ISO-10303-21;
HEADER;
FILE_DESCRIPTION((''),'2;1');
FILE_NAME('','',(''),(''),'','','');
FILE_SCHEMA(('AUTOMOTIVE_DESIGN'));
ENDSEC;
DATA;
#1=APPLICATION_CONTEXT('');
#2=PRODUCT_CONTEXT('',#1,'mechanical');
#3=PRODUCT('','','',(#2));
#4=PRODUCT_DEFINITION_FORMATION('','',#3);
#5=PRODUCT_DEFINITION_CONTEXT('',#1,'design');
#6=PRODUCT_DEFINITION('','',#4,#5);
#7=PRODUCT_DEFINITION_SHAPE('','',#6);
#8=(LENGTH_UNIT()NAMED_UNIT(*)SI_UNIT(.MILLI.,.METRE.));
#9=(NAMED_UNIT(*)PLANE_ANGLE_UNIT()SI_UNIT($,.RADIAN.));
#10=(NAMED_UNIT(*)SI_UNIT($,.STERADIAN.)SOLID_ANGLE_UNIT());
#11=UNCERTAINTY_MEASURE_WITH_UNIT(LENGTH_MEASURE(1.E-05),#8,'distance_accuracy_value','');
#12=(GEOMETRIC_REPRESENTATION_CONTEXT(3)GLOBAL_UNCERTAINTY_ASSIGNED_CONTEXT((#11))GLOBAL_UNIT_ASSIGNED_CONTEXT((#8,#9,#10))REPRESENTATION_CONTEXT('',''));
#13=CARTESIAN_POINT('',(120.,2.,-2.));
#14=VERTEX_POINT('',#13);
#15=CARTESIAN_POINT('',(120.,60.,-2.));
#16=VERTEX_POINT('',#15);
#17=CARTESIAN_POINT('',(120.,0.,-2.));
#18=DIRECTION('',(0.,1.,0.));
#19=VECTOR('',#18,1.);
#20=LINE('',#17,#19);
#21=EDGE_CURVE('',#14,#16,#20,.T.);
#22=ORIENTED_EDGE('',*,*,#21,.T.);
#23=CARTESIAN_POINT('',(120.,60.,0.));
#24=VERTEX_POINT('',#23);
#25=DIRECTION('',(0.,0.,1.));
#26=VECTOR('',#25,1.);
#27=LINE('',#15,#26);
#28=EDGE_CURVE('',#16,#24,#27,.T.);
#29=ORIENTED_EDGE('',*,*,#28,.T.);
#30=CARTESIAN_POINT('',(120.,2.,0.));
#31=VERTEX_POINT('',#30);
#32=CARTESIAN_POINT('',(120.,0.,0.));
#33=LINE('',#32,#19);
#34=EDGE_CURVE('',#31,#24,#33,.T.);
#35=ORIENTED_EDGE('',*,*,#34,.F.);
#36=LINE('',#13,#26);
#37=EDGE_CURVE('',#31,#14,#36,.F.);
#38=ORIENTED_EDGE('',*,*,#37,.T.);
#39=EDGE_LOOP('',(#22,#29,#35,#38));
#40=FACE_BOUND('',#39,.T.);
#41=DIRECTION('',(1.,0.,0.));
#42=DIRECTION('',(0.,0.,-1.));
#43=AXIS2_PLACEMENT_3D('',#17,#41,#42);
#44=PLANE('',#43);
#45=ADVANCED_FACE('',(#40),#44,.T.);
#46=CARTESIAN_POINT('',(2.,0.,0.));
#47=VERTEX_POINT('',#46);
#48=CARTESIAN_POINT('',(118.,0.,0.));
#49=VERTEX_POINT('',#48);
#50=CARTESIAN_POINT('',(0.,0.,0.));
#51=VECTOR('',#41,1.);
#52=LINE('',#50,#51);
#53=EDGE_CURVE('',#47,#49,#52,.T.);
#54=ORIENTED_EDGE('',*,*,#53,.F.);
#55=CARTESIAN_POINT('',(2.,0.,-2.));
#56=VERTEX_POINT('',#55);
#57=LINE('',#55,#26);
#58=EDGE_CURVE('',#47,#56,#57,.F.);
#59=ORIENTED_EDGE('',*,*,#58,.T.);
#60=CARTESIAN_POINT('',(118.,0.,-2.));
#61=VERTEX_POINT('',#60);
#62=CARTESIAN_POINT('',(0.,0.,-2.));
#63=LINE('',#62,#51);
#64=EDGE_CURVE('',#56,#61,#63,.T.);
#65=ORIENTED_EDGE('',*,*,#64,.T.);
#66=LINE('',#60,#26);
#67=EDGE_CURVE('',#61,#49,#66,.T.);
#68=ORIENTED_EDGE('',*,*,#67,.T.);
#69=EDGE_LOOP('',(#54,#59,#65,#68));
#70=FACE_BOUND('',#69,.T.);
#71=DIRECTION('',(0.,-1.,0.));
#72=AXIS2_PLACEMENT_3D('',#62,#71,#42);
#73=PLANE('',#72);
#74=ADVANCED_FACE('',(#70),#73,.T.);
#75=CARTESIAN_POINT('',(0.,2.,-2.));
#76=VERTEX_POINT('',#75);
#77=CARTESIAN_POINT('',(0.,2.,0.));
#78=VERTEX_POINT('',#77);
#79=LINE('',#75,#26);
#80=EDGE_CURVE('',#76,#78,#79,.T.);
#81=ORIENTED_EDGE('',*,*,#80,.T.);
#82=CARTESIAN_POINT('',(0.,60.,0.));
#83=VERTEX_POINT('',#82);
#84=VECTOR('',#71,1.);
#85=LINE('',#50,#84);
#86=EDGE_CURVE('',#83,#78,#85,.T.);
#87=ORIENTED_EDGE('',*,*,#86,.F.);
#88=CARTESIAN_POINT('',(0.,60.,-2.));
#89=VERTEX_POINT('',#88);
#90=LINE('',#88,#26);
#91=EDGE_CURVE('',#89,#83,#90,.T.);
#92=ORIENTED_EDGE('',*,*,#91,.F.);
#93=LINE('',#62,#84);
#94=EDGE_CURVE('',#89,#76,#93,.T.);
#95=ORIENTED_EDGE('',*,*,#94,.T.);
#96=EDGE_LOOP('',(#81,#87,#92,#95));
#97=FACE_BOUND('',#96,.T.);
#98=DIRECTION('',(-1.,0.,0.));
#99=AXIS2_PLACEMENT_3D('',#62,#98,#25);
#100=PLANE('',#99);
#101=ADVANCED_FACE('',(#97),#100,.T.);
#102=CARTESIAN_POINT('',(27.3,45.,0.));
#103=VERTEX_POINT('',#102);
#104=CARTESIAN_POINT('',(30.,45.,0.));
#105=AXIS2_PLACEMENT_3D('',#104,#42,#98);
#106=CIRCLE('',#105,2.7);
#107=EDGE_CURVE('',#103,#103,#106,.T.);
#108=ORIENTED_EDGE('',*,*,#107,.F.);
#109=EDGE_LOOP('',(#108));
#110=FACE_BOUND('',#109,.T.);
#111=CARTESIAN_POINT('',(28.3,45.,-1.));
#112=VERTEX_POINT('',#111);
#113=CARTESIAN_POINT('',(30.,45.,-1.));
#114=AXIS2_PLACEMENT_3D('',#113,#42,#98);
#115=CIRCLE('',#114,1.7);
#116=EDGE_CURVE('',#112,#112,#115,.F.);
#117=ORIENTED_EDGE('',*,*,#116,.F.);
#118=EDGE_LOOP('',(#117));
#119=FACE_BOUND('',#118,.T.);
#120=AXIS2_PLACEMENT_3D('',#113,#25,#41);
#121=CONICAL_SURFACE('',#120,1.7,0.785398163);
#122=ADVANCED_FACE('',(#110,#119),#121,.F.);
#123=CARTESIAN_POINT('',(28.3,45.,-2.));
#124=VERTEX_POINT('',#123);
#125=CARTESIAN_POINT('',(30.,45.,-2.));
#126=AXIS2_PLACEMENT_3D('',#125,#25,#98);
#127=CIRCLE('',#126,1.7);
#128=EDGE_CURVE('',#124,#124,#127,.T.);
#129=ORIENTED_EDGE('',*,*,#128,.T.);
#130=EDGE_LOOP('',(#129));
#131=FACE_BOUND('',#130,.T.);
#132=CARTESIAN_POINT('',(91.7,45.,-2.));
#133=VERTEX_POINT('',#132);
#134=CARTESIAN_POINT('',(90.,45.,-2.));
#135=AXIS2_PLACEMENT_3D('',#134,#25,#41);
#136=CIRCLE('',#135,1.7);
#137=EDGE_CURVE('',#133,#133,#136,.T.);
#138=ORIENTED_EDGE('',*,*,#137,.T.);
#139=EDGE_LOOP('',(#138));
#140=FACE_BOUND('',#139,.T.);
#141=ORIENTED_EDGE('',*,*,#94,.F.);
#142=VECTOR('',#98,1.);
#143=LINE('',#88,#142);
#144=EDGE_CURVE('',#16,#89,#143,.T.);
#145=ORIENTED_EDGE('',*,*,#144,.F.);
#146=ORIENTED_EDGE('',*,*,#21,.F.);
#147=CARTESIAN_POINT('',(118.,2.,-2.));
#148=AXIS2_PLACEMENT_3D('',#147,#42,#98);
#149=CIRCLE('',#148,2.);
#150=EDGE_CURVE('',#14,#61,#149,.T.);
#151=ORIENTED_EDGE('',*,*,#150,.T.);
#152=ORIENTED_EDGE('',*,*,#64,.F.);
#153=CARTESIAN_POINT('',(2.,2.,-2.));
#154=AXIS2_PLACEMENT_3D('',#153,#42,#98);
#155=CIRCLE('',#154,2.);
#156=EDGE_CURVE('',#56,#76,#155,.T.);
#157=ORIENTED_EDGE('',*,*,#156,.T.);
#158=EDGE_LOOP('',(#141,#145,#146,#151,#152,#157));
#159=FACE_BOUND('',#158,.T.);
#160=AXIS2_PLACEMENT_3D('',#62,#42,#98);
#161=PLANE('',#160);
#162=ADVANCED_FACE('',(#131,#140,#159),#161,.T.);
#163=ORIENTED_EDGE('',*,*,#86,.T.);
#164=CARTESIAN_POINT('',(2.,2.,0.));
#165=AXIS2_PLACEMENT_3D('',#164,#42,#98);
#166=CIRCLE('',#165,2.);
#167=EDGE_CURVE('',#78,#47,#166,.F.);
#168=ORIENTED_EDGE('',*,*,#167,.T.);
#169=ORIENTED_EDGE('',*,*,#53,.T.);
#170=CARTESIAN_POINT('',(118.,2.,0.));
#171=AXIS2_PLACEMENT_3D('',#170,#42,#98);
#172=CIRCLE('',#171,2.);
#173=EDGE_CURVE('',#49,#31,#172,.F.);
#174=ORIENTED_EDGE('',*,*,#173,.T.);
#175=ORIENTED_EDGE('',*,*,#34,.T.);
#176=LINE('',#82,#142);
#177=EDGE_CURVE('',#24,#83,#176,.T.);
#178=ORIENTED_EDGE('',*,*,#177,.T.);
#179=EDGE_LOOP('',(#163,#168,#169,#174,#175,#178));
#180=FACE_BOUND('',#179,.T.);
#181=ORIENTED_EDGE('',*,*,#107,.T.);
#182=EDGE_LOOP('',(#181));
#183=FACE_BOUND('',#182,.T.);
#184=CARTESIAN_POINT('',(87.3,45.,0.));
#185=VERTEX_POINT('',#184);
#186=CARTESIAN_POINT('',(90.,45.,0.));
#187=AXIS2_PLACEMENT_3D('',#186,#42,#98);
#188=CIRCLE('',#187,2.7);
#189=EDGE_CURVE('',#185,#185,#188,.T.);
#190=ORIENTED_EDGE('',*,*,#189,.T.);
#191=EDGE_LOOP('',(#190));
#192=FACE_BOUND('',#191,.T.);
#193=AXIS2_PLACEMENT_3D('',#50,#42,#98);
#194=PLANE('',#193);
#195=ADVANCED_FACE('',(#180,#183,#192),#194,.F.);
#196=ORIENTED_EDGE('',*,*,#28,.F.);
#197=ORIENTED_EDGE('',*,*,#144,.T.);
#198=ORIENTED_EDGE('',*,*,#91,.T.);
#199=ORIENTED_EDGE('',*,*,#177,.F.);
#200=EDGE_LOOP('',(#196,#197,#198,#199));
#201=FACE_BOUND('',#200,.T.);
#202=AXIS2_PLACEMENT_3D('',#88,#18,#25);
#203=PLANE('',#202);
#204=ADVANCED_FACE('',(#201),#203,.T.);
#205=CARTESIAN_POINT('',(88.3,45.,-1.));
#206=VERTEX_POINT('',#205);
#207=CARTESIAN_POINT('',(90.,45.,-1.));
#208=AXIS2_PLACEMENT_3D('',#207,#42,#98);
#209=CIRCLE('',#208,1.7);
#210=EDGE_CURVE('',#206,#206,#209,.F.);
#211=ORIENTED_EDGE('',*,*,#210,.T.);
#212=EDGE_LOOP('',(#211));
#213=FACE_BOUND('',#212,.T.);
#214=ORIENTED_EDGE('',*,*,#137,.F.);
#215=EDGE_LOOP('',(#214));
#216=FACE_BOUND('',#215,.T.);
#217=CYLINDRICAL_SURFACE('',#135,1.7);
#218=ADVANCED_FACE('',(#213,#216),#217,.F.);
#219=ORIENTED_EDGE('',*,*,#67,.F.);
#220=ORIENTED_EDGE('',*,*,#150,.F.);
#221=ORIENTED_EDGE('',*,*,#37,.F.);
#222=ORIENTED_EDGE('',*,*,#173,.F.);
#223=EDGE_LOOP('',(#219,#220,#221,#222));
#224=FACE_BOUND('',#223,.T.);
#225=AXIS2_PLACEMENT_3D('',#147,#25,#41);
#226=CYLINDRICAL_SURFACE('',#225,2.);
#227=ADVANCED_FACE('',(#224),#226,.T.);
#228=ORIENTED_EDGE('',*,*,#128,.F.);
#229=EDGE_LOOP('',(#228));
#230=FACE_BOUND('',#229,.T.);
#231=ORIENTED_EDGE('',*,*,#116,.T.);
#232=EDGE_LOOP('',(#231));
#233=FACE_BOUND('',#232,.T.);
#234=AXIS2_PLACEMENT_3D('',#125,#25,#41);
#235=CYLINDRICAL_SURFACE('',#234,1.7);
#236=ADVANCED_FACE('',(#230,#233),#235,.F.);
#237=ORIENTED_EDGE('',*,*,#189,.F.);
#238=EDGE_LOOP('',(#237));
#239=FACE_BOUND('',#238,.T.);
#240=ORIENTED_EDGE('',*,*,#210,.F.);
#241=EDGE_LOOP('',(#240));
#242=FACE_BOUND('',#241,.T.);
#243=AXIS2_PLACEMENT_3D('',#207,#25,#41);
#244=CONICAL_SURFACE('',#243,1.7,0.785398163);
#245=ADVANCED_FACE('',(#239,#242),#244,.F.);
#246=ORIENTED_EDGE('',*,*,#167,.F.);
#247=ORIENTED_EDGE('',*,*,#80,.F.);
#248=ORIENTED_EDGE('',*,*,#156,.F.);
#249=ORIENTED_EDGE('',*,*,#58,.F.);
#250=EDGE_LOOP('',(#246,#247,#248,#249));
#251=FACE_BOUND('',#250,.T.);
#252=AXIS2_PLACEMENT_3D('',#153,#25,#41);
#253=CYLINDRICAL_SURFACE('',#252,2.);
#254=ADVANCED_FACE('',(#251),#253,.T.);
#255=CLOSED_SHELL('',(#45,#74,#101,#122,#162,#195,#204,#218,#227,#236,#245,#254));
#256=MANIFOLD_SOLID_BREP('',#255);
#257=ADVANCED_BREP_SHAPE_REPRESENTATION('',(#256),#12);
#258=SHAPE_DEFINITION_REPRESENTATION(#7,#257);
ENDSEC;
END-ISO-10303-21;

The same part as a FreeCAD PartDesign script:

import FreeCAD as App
import Part
import Sketcher


def edges_at(feature, points):
    """Names of the edges that pass closest to the given points."""
    edges = feature.Shape.Edges
    near = lambda p: min(range(len(edges)), key=lambda i: edges[i].distToShape(Part.Vertex(*p))[0])
    return sorted({f"Edge{near(p) + 1}" for p in points})

doc = App.newDocument("Part")
body = doc.addObject("PartDesign::Body", "Body")

# Sketch on XY plane
sketch1 = body.newObject("Sketcher::SketchObject", "Sketch")
sketch1.AttachmentSupport = (doc.getObject("XY_Plane"), [""])
sketch1.MapMode = "FlatFace"
sketch1.addGeometry([
    Part.LineSegment(App.Vector(0, 60, 0), App.Vector(0, 0, 0)),  # 0
    Part.LineSegment(App.Vector(0, 0, 0), App.Vector(120, 0, 0)),  # 1
    Part.LineSegment(App.Vector(120, 0, 0), App.Vector(120, 60, 0)),  # 2
    Part.LineSegment(App.Vector(120, 60, 0), App.Vector(0, 60, 0)),  # 3
    Part.Circle(App.Vector(30, 45, 0), App.Vector(0, 0, 1), 1.7),  # 4
    Part.Circle(App.Vector(90, 45, 0), App.Vector(0, 0, 1), 1.7),  # 5
], False)
sketch1.addConstraint([
    Sketcher.Constraint("Coincident", 0, 2, 1, 1),
    Sketcher.Constraint("Coincident", 1, 2, 2, 1),
    Sketcher.Constraint("Coincident", 2, 2, 3, 1),
    Sketcher.Constraint("Coincident", 3, 2, 0, 1),
    Sketcher.Constraint("Vertical", 0),
    Sketcher.Constraint("Horizontal", 1),
    Sketcher.Constraint("Vertical", 2),
    Sketcher.Constraint("Horizontal", 3),
    Sketcher.Constraint("Coincident", 0, 2, -1, 1),
    Sketcher.Constraint("Equal", 4, 5),
    Sketcher.Constraint("Horizontal", 4, 3, 5, 3),
    Sketcher.Constraint("Diameter", 4, 3.4),
    Sketcher.Constraint("DistanceX", 1, 1, 1, 2, 120.0),
    Sketcher.Constraint("DistanceY", 0, 2, 0, 1, 60.0),
    Sketcher.Constraint("DistanceX", -1, 1, 4, 3, 30.0),
    Sketcher.Constraint("DistanceY", -1, 1, 4, 3, 45.0),
    Sketcher.Constraint("DistanceX", -1, 1, 5, 3, 90.0),
])
pad1 = body.newObject("PartDesign::Pad", "Pad")
pad1.Profile = sketch1
pad1.Length = 2
pad1.Reversed = True
doc.recompute()

fillet = body.newObject("PartDesign::Fillet", "Fillet")
fillet.Base = (pad1, edges_at(pad1, [(0, 0, -1)]))
fillet.Radius = 2
doc.recompute()

fillet2 = body.newObject("PartDesign::Fillet", "Fillet001")
fillet2.Base = (fillet, edges_at(fillet, [(120, 0, -1)]))
fillet2.Radius = 2
doc.recompute()

chamfer = body.newObject("PartDesign::Chamfer", "Chamfer")
chamfer.Base = (fillet2, edges_at(fillet2, [(31.7, 45, 0)]))
chamfer.Size = 1
doc.recompute()

chamfer2 = body.newObject("PartDesign::Chamfer", "Chamfer001")
chamfer2.Base = (chamfer, edges_at(chamfer, [(88.3, 45, 0)]))
chamfer2.Size = 1

doc.recompute()
